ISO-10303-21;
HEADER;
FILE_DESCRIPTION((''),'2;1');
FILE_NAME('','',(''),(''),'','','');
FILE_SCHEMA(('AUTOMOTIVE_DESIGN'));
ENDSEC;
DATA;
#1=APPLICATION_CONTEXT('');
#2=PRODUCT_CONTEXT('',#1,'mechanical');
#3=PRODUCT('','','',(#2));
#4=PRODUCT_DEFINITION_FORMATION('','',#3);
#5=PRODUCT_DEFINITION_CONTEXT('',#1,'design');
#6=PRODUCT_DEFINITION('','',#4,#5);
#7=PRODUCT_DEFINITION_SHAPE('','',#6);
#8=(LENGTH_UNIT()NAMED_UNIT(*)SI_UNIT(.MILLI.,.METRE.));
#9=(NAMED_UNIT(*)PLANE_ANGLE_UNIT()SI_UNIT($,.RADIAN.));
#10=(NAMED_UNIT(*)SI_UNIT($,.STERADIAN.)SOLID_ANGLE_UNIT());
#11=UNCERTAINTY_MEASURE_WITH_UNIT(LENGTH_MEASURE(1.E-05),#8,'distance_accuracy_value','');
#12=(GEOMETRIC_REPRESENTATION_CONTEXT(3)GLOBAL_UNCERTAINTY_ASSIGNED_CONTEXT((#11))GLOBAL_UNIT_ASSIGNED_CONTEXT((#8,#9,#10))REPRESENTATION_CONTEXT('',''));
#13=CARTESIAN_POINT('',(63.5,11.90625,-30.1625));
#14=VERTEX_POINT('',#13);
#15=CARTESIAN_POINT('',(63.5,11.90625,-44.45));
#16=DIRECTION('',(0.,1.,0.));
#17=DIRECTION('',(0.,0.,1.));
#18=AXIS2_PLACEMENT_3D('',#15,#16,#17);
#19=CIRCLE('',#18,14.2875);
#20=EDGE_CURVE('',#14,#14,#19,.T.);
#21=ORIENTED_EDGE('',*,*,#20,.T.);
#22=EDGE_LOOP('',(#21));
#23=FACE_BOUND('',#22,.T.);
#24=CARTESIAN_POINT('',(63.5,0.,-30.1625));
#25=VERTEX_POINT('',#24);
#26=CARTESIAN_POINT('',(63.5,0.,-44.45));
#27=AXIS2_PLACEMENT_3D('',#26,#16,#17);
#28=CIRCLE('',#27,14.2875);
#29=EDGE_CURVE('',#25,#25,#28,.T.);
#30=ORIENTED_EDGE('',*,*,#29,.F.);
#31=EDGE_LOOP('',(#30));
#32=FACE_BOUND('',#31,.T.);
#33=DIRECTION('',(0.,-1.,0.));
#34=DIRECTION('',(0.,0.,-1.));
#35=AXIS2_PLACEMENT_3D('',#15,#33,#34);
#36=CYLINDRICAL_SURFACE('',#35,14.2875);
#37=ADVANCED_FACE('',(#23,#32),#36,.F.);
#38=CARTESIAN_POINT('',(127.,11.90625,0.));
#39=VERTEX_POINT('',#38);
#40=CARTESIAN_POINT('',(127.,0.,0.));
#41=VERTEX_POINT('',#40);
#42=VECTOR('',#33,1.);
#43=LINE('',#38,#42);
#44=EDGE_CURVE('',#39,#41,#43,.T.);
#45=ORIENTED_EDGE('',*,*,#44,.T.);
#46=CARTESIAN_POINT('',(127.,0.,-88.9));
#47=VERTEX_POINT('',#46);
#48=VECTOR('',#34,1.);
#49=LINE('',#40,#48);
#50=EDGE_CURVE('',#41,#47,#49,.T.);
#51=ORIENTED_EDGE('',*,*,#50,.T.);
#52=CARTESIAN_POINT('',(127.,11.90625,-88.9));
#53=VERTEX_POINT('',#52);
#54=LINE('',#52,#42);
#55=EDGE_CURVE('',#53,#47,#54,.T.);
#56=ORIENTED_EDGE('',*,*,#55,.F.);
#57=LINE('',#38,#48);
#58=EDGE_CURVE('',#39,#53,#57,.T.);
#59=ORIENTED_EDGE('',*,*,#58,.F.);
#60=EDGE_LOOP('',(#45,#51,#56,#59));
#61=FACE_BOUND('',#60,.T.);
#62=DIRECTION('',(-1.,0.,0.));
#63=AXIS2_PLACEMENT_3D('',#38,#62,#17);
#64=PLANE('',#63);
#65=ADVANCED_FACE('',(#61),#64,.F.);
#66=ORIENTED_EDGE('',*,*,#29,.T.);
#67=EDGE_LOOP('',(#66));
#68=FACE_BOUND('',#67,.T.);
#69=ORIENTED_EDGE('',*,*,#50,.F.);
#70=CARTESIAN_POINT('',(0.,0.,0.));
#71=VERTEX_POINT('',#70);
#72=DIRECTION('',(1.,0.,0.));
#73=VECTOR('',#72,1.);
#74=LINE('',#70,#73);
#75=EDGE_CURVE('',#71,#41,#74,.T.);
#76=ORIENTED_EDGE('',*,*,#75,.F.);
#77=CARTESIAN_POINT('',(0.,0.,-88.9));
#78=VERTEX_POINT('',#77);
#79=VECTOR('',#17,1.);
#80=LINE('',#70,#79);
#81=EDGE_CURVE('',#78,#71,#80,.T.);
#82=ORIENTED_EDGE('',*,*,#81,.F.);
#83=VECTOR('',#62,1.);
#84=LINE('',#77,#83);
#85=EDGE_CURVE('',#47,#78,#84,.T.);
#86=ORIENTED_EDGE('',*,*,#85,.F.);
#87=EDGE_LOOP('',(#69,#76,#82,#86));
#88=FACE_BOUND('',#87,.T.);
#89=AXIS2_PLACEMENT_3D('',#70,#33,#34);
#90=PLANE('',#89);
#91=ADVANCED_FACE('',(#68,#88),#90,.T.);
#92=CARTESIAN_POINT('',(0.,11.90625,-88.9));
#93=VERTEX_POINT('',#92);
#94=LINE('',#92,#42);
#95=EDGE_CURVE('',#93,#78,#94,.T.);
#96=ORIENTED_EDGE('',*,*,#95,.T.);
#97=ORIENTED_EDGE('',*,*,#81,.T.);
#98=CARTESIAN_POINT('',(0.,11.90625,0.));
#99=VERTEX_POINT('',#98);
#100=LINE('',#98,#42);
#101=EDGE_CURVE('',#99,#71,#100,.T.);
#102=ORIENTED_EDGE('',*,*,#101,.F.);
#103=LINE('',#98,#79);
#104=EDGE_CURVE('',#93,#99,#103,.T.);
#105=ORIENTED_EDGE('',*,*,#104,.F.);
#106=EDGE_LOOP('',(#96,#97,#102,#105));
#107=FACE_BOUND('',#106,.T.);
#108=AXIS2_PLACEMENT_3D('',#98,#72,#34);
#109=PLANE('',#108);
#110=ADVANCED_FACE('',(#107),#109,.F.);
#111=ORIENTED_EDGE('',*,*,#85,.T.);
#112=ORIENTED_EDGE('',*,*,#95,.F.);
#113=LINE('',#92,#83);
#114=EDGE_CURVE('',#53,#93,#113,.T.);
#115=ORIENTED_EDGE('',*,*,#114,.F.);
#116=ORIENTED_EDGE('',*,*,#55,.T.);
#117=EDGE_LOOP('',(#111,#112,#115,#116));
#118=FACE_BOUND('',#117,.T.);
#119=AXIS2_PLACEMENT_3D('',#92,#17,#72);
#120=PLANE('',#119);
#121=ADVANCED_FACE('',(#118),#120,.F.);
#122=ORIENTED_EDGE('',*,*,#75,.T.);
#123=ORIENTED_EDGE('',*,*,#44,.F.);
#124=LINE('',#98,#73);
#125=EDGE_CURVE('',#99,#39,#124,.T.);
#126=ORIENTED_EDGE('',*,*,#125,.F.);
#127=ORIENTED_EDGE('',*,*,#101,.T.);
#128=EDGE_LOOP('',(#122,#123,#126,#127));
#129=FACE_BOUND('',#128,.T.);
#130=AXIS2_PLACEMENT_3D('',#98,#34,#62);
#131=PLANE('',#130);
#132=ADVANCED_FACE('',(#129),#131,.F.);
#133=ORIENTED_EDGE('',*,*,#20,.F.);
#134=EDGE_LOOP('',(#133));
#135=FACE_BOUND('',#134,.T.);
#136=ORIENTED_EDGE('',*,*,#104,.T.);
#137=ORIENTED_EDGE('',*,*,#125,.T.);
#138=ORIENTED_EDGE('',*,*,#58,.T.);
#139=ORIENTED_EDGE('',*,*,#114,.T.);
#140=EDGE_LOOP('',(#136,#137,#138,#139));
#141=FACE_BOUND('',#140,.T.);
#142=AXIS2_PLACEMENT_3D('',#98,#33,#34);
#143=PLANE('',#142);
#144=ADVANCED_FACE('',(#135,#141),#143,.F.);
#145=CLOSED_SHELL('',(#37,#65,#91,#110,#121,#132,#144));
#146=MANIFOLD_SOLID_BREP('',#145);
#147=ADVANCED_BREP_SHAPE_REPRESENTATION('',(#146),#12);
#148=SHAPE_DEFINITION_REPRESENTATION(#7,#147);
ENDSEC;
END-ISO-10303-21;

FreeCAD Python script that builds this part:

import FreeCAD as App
import Part
import Sketcher

V = App.Vector
Q = App.Units.Quantity

doc = App.newDocument("Part")
body = doc.addObject("PartDesign::Body", "Body")

# Sketch on XZ plane
sketch1 = body.newObject("Sketcher::SketchObject", "Sketch")
sketch1.AttachmentSupport = (doc.getObject("XZ_Plane"), [""])
sketch1.MapMode = "FlatFace"
sketch1.addGeometry([
    Part.LineSegment(V(0, -89, 0), V(0, 0, 0)),  # 0
    Part.LineSegment(V(0, 0, 0), V(127, 0, 0)),  # 1
    Part.LineSegment(V(127, 0, 0), V(127, -89, 0)),  # 2
    Part.LineSegment(V(127, -89, 0), V(0, -89, 0)),  # 3
    Part.Circle(V(64, -44, 0), V(0, 0, 1), 14),  # 4
], False)
sketch1.addConstraint([
    Sketcher.Constraint("Coincident", 0, 2, 1, 1),
    Sketcher.Constraint("Coincident", 1, 2, 2, 1),
    Sketcher.Constraint("Coincident", 2, 2, 3, 1),
    Sketcher.Constraint("Coincident", 3, 2, 0, 1),
    Sketcher.Constraint("Vertical", 0),
    Sketcher.Constraint("Horizontal", 1),
    Sketcher.Constraint("Vertical", 2),
    Sketcher.Constraint("Horizontal", 3),
    Sketcher.Constraint("Coincident", 0, 2, -1, 1),
    Sketcher.Constraint("DistanceX", 1, 1, 1, 2, Q("5 in")),
    Sketcher.Constraint("Diameter", 4, Q("1.125 in")),
    Sketcher.Constraint("DistanceY", 0, 1, 0, 2, Q("3.5 in")),
    Sketcher.Constraint("DistanceX", -1, 1, 4, 3, Q("2.5 in")),
    Sketcher.Constraint("DistanceY", 4, 3, -1, 1, Q("1.75 in")),
])
pad1 = body.newObject("PartDesign::Pad", "Pad")
pad1.Profile = sketch1
pad1.Length = Q("0.46875 in")
pad1.Reversed = True

doc.recompute()
